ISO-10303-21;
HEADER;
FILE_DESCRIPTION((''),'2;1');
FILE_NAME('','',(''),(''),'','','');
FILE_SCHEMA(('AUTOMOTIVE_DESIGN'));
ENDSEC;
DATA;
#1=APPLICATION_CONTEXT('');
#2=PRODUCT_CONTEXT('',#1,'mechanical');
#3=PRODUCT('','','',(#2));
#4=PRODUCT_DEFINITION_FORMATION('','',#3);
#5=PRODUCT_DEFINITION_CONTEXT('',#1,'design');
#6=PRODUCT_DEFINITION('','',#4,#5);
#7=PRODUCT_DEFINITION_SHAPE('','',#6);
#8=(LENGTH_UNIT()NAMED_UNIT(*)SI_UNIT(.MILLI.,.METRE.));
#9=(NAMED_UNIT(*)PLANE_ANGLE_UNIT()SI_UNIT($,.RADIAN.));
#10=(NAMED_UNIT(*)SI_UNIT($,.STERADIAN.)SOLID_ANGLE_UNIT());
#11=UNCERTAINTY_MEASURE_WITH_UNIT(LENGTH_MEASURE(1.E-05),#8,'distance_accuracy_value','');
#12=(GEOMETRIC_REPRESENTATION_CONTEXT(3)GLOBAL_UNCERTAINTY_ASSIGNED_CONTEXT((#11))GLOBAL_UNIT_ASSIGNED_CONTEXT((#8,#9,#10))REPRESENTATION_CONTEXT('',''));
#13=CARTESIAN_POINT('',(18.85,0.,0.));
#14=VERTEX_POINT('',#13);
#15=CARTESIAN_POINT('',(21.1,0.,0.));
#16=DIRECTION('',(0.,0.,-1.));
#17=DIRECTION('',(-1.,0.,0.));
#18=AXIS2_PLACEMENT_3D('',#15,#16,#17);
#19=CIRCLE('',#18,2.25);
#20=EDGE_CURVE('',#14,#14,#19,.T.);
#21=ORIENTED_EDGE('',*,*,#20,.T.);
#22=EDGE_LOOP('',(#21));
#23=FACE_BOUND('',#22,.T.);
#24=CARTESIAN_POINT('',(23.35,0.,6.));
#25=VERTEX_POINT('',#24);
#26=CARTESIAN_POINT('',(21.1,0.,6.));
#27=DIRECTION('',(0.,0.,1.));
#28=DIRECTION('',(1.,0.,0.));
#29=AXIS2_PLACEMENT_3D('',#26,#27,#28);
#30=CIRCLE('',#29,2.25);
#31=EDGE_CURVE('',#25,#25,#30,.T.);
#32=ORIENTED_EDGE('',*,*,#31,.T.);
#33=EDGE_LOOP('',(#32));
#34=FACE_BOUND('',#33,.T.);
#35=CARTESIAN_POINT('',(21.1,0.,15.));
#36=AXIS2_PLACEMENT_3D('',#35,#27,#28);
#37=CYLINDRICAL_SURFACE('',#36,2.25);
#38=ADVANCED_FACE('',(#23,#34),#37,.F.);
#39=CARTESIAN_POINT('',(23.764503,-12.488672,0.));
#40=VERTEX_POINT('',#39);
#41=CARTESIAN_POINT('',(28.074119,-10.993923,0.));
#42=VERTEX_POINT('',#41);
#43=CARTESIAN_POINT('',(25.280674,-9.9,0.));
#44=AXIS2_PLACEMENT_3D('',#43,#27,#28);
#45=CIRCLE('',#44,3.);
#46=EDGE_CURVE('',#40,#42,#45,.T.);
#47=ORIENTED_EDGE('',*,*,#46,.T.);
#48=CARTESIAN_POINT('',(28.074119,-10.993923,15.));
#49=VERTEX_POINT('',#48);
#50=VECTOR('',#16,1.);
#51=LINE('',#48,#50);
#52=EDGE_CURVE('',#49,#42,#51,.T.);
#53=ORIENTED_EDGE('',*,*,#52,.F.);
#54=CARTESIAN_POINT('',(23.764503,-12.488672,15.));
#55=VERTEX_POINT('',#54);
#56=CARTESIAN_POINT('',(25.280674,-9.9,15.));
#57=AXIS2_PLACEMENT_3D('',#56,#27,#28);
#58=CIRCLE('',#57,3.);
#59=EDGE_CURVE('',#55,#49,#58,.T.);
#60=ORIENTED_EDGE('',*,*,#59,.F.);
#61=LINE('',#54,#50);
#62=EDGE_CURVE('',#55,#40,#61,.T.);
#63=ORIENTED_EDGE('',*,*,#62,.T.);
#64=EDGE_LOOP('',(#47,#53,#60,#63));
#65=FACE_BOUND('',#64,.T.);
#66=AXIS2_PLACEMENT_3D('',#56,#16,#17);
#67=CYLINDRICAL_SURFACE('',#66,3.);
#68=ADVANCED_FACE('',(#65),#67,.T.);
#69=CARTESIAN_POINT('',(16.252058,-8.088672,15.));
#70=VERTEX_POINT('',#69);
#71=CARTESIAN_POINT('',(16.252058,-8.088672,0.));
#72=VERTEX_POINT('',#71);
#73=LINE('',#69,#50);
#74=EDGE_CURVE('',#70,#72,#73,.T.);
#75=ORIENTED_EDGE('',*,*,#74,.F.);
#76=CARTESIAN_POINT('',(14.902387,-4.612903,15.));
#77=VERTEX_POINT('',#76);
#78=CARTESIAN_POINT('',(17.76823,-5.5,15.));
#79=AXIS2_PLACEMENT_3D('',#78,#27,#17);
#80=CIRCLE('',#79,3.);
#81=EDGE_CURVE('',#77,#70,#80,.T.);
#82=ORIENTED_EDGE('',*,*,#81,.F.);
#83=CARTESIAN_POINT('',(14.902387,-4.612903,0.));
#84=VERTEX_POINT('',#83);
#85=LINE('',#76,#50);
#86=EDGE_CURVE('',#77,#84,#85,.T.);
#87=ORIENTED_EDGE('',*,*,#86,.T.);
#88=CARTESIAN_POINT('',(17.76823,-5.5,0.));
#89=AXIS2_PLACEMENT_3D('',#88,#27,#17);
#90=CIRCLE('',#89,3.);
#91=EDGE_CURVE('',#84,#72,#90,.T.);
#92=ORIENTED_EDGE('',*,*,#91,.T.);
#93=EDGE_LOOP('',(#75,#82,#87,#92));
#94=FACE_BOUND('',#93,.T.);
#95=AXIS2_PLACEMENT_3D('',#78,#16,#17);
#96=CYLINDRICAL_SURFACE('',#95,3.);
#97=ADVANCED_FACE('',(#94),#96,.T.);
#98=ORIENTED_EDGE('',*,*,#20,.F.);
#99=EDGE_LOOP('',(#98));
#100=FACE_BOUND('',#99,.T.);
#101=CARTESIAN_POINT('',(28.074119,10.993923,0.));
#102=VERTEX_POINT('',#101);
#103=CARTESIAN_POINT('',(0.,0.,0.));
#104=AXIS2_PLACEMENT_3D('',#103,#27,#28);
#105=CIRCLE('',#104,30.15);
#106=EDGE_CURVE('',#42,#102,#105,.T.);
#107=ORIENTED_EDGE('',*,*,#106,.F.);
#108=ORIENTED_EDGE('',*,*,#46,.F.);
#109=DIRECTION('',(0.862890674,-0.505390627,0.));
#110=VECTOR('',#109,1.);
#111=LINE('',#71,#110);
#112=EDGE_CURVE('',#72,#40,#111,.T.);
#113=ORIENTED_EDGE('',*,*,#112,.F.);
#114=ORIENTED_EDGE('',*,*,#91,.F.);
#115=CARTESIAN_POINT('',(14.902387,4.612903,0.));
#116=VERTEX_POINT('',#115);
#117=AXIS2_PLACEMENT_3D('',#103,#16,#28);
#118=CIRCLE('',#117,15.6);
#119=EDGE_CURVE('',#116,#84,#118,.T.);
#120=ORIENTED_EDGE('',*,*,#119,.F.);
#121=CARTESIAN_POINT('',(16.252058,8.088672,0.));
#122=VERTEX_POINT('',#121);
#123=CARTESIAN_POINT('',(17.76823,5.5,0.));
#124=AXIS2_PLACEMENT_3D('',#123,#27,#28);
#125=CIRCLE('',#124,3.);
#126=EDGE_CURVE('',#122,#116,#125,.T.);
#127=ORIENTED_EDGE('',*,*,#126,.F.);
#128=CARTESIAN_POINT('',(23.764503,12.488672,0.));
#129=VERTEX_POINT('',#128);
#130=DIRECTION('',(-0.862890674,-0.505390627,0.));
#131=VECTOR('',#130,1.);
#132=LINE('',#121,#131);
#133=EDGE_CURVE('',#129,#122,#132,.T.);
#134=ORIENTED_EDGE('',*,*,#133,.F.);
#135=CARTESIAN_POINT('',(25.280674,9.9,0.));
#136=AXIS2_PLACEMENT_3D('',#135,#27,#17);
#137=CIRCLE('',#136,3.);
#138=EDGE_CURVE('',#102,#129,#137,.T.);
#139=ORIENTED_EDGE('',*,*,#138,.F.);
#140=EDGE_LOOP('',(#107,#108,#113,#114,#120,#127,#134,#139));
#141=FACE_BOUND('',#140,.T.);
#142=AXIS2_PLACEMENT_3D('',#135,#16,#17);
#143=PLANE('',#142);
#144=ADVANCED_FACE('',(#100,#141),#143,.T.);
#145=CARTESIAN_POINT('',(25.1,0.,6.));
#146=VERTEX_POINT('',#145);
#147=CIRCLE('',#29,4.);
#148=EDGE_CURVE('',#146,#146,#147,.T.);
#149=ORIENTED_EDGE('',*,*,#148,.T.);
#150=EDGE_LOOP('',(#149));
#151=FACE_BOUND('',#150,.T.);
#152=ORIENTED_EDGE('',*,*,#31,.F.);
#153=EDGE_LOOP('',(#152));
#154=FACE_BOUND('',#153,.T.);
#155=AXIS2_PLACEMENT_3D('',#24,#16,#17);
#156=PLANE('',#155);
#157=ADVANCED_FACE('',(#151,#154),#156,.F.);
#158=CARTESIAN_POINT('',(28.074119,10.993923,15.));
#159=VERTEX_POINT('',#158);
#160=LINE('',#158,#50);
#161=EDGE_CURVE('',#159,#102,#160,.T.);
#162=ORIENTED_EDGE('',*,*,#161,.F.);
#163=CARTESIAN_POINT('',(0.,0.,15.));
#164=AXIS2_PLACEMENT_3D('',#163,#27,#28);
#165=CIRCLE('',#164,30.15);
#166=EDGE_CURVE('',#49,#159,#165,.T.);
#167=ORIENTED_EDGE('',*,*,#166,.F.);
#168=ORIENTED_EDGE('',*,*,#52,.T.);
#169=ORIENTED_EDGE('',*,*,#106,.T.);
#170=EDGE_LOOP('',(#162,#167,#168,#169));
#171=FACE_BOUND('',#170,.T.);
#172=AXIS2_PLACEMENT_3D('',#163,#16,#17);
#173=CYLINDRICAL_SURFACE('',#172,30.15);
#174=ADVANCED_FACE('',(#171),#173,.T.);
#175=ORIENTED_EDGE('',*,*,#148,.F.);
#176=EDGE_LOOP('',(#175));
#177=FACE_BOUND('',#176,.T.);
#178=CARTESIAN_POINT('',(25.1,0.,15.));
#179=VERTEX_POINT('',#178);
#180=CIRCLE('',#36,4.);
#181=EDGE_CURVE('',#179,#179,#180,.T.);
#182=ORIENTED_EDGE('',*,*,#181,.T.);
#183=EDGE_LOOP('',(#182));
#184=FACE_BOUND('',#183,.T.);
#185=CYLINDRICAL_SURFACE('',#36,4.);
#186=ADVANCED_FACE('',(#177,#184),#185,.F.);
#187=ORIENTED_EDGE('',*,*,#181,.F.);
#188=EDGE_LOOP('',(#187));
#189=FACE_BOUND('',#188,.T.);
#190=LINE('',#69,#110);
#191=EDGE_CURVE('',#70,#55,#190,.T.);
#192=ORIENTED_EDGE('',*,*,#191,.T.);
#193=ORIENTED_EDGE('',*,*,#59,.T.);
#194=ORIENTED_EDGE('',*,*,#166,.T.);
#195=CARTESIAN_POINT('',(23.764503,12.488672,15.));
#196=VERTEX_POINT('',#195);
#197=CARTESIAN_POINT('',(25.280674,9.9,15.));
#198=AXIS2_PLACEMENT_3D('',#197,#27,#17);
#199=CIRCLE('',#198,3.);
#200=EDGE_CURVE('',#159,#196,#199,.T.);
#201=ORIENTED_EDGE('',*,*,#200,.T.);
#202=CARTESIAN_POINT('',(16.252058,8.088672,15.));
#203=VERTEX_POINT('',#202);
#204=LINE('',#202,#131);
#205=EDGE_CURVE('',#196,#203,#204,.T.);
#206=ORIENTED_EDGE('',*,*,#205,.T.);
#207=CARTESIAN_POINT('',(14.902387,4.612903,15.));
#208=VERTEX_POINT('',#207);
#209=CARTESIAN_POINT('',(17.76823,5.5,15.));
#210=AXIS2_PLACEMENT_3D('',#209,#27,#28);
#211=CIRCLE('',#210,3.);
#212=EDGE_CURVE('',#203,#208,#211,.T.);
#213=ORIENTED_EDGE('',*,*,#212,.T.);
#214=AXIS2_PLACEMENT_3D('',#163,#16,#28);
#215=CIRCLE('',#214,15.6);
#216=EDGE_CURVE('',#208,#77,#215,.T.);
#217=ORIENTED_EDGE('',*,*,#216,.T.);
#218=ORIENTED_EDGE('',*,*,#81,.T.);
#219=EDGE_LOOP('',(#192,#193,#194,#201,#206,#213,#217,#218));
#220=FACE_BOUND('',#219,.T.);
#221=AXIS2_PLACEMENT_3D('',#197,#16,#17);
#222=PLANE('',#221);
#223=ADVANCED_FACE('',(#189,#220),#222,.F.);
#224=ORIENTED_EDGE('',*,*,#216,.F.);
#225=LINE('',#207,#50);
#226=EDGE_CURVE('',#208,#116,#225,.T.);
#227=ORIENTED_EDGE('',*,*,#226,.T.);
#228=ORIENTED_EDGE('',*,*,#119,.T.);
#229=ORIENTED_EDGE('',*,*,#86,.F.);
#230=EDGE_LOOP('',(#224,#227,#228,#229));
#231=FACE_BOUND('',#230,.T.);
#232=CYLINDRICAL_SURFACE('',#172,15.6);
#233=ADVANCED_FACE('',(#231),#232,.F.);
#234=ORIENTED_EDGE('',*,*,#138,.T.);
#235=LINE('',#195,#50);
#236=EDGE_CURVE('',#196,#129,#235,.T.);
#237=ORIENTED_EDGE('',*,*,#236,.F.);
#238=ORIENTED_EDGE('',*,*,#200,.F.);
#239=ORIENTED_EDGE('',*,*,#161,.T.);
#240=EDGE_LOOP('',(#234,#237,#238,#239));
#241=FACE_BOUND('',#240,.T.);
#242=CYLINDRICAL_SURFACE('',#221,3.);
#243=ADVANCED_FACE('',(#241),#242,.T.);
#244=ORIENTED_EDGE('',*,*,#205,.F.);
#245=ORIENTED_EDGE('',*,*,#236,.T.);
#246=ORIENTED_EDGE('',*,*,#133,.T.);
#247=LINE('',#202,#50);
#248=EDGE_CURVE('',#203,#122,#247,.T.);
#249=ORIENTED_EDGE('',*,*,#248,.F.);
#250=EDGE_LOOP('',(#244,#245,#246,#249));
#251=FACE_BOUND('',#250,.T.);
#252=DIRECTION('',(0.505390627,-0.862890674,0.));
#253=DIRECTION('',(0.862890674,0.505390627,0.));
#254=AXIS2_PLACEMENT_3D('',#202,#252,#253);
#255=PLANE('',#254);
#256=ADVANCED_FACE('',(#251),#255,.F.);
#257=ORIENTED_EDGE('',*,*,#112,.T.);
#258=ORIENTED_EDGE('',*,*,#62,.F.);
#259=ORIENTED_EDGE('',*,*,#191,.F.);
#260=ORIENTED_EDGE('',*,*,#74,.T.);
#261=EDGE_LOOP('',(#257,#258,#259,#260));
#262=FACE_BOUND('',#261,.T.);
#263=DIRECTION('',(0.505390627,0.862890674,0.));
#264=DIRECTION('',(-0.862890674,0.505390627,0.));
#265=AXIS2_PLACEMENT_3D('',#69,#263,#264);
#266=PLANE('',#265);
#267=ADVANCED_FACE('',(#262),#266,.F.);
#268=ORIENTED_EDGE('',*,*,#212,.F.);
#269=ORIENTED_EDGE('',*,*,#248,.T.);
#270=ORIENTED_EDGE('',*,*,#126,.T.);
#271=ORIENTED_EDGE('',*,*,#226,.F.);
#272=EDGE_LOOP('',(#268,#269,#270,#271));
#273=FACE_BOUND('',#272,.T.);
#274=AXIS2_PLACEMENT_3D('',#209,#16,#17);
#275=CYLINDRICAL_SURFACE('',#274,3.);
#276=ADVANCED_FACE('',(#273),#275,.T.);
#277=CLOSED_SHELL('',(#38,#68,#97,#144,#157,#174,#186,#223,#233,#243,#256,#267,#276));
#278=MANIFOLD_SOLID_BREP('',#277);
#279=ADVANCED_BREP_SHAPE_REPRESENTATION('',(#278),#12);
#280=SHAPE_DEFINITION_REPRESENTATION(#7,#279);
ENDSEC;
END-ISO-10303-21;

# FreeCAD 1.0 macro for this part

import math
import FreeCAD as App
import Part
import Sketcher

V = App.Vector
Q = App.Units.Quantity

doc = App.newDocument("Part")
body = doc.addObject("PartDesign::Body", "Body")

# Sketch on XY plane
sketch1 = doc.addObject("Sketcher::SketchObject", "Sketch")
body.addObject(sketch1)
sketch1.AttachmentSupport = (doc.XY_Plane, [""])
sketch1.MapMode = "FlatFace"
sketch1.addGeometry(Part.LineSegment(V(23.8, 12.5, 0), V(16.3, 8.1, 0)), False)
sketch1.addGeometry(Part.ArcOfCircle(Part.Circle(V(17.8, 5.5, 0), V(0, 0, 1), 3), math.radians(120), math.radians(197)), False)
sketch1.addGeometry(Part.ArcOfCircle(Part.Circle(V(0, 0, 0), V(0, 0, 1), 15.6), math.radians(-17), math.radians(17)), False)
sketch1.addGeometry(Part.ArcOfCircle(Part.Circle(V(17.8, -5.5, 0), V(0, 0, 1), 3), math.radians(163), math.radians(240)), False)
sketch1.addGeometry(Part.LineSegment(V(16.3, -8.1, 0), V(23.8, -12.5, 0)), False)
sketch1.addGeometry(Part.ArcOfCircle(Part.Circle(V(25.3, -9.9, 0), V(0, 0, 1), 3), math.radians(-120), math.radians(-21)), False)
sketch1.addGeometry(Part.ArcOfCircle(Part.Circle(V(0, 0, 0), V(0, 0, 1), 30.1), math.radians(-21), math.radians(21)), False)
sketch1.addGeometry(Part.ArcOfCircle(Part.Circle(V(25.3, 9.9, 0), V(0, 0, 1), 3), math.radians(21), math.radians(120)), False)
sketch1.addConstraint(Sketcher.Constraint("Tangent", 0, 2, 1, 1))
sketch1.addConstraint(Sketcher.Constraint("Tangent", 1, 2, 2, 2))
sketch1.addConstraint(Sketcher.Constraint("Tangent", 2, 1, 3, 1))
sketch1.addConstraint(Sketcher.Constraint("Tangent", 3, 2, 4, 1))
sketch1.addConstraint(Sketcher.Constraint("Tangent", 4, 2, 5, 1))
sketch1.addConstraint(Sketcher.Constraint("Tangent", 5, 2, 6, 1))
sketch1.addConstraint(Sketcher.Constraint("Tangent", 6, 2, 7, 1))
sketch1.addConstraint(Sketcher.Constraint("Tangent", 7, 2, 0, 1))
sketch1.addConstraint(Sketcher.Constraint("Coincident", 2, 3, -1, 1))
sketch1.addConstraint(Sketcher.Constraint("Coincident", 6, 3, -1, 1))
sketch1.addConstraint(Sketcher.Constraint("Equal", 1, 3))
sketch1.addConstraint(Sketcher.Constraint("Equal", 3, 5))
sketch1.addConstraint(Sketcher.Constraint("Equal", 5, 7))
sketch1.addConstraint(Sketcher.Constraint("Symmetric", 0, 2, 3, 2, -1))
sketch1.addConstraint(Sketcher.Constraint("Radius", 1, Q("3 mm")))
sketch1.addConstraint(Sketcher.Constraint("Radius", 2, Q("15.6 mm")))
sketch1.addConstraint(Sketcher.Constraint("Radius", 6, Q("30.15 mm")))
sketch1.addConstraint(Sketcher.Constraint("DistanceY", 3, 3, 1, 3, Q("11 mm")))
sketch1.addConstraint(Sketcher.Constraint("DistanceY", 5, 3, -1, 1, Q("9.9 mm")))
pad1 = doc.addObject("PartDesign::Pad", "Pad")
body.addObject(pad1)
pad1.Profile = sketch1
pad1.Length = 15

# Sketch on XY plane
sketch2 = doc.addObject("Sketcher::SketchObject", "Sketch001")
body.addObject(sketch2)
sketch2.AttachmentSupport = (doc.XY_Plane, [""])
sketch2.MapMode = "FlatFace"
sketch2.AttachmentOffset = App.Placement(V(0, 0, 15), App.Rotation())
sketch2.addGeometry(Part.Circle(V(21.1, 0, 0), V(0, 0, 1), 2.2), False)
sketch2.addConstraint(Sketcher.Constraint("PointOnObject", 0, 3, -1))
sketch2.addConstraint(Sketcher.Constraint("Diameter", 0, Q("4.5 mm")))
sketch2.addConstraint(Sketcher.Constraint("DistanceX", -1, 1, 0, 3, Q("21.1 mm")))
doc.recompute()
hole = doc.addObject("PartDesign::Hole", "Hole")
body.addObject(hole)
hole.Profile = sketch2
hole.ThreadType = "None"
hole.Diameter = 4.5
hole.DepthType = "Dimension"
hole.Depth = 30
hole.DrillPoint = "Angled"
hole.DrillPointAngle = 118
hole.HoleCutType = "Counterbore"
hole.HoleCutDiameter = 8
hole.HoleCutDepth = 9

doc.recompute()
